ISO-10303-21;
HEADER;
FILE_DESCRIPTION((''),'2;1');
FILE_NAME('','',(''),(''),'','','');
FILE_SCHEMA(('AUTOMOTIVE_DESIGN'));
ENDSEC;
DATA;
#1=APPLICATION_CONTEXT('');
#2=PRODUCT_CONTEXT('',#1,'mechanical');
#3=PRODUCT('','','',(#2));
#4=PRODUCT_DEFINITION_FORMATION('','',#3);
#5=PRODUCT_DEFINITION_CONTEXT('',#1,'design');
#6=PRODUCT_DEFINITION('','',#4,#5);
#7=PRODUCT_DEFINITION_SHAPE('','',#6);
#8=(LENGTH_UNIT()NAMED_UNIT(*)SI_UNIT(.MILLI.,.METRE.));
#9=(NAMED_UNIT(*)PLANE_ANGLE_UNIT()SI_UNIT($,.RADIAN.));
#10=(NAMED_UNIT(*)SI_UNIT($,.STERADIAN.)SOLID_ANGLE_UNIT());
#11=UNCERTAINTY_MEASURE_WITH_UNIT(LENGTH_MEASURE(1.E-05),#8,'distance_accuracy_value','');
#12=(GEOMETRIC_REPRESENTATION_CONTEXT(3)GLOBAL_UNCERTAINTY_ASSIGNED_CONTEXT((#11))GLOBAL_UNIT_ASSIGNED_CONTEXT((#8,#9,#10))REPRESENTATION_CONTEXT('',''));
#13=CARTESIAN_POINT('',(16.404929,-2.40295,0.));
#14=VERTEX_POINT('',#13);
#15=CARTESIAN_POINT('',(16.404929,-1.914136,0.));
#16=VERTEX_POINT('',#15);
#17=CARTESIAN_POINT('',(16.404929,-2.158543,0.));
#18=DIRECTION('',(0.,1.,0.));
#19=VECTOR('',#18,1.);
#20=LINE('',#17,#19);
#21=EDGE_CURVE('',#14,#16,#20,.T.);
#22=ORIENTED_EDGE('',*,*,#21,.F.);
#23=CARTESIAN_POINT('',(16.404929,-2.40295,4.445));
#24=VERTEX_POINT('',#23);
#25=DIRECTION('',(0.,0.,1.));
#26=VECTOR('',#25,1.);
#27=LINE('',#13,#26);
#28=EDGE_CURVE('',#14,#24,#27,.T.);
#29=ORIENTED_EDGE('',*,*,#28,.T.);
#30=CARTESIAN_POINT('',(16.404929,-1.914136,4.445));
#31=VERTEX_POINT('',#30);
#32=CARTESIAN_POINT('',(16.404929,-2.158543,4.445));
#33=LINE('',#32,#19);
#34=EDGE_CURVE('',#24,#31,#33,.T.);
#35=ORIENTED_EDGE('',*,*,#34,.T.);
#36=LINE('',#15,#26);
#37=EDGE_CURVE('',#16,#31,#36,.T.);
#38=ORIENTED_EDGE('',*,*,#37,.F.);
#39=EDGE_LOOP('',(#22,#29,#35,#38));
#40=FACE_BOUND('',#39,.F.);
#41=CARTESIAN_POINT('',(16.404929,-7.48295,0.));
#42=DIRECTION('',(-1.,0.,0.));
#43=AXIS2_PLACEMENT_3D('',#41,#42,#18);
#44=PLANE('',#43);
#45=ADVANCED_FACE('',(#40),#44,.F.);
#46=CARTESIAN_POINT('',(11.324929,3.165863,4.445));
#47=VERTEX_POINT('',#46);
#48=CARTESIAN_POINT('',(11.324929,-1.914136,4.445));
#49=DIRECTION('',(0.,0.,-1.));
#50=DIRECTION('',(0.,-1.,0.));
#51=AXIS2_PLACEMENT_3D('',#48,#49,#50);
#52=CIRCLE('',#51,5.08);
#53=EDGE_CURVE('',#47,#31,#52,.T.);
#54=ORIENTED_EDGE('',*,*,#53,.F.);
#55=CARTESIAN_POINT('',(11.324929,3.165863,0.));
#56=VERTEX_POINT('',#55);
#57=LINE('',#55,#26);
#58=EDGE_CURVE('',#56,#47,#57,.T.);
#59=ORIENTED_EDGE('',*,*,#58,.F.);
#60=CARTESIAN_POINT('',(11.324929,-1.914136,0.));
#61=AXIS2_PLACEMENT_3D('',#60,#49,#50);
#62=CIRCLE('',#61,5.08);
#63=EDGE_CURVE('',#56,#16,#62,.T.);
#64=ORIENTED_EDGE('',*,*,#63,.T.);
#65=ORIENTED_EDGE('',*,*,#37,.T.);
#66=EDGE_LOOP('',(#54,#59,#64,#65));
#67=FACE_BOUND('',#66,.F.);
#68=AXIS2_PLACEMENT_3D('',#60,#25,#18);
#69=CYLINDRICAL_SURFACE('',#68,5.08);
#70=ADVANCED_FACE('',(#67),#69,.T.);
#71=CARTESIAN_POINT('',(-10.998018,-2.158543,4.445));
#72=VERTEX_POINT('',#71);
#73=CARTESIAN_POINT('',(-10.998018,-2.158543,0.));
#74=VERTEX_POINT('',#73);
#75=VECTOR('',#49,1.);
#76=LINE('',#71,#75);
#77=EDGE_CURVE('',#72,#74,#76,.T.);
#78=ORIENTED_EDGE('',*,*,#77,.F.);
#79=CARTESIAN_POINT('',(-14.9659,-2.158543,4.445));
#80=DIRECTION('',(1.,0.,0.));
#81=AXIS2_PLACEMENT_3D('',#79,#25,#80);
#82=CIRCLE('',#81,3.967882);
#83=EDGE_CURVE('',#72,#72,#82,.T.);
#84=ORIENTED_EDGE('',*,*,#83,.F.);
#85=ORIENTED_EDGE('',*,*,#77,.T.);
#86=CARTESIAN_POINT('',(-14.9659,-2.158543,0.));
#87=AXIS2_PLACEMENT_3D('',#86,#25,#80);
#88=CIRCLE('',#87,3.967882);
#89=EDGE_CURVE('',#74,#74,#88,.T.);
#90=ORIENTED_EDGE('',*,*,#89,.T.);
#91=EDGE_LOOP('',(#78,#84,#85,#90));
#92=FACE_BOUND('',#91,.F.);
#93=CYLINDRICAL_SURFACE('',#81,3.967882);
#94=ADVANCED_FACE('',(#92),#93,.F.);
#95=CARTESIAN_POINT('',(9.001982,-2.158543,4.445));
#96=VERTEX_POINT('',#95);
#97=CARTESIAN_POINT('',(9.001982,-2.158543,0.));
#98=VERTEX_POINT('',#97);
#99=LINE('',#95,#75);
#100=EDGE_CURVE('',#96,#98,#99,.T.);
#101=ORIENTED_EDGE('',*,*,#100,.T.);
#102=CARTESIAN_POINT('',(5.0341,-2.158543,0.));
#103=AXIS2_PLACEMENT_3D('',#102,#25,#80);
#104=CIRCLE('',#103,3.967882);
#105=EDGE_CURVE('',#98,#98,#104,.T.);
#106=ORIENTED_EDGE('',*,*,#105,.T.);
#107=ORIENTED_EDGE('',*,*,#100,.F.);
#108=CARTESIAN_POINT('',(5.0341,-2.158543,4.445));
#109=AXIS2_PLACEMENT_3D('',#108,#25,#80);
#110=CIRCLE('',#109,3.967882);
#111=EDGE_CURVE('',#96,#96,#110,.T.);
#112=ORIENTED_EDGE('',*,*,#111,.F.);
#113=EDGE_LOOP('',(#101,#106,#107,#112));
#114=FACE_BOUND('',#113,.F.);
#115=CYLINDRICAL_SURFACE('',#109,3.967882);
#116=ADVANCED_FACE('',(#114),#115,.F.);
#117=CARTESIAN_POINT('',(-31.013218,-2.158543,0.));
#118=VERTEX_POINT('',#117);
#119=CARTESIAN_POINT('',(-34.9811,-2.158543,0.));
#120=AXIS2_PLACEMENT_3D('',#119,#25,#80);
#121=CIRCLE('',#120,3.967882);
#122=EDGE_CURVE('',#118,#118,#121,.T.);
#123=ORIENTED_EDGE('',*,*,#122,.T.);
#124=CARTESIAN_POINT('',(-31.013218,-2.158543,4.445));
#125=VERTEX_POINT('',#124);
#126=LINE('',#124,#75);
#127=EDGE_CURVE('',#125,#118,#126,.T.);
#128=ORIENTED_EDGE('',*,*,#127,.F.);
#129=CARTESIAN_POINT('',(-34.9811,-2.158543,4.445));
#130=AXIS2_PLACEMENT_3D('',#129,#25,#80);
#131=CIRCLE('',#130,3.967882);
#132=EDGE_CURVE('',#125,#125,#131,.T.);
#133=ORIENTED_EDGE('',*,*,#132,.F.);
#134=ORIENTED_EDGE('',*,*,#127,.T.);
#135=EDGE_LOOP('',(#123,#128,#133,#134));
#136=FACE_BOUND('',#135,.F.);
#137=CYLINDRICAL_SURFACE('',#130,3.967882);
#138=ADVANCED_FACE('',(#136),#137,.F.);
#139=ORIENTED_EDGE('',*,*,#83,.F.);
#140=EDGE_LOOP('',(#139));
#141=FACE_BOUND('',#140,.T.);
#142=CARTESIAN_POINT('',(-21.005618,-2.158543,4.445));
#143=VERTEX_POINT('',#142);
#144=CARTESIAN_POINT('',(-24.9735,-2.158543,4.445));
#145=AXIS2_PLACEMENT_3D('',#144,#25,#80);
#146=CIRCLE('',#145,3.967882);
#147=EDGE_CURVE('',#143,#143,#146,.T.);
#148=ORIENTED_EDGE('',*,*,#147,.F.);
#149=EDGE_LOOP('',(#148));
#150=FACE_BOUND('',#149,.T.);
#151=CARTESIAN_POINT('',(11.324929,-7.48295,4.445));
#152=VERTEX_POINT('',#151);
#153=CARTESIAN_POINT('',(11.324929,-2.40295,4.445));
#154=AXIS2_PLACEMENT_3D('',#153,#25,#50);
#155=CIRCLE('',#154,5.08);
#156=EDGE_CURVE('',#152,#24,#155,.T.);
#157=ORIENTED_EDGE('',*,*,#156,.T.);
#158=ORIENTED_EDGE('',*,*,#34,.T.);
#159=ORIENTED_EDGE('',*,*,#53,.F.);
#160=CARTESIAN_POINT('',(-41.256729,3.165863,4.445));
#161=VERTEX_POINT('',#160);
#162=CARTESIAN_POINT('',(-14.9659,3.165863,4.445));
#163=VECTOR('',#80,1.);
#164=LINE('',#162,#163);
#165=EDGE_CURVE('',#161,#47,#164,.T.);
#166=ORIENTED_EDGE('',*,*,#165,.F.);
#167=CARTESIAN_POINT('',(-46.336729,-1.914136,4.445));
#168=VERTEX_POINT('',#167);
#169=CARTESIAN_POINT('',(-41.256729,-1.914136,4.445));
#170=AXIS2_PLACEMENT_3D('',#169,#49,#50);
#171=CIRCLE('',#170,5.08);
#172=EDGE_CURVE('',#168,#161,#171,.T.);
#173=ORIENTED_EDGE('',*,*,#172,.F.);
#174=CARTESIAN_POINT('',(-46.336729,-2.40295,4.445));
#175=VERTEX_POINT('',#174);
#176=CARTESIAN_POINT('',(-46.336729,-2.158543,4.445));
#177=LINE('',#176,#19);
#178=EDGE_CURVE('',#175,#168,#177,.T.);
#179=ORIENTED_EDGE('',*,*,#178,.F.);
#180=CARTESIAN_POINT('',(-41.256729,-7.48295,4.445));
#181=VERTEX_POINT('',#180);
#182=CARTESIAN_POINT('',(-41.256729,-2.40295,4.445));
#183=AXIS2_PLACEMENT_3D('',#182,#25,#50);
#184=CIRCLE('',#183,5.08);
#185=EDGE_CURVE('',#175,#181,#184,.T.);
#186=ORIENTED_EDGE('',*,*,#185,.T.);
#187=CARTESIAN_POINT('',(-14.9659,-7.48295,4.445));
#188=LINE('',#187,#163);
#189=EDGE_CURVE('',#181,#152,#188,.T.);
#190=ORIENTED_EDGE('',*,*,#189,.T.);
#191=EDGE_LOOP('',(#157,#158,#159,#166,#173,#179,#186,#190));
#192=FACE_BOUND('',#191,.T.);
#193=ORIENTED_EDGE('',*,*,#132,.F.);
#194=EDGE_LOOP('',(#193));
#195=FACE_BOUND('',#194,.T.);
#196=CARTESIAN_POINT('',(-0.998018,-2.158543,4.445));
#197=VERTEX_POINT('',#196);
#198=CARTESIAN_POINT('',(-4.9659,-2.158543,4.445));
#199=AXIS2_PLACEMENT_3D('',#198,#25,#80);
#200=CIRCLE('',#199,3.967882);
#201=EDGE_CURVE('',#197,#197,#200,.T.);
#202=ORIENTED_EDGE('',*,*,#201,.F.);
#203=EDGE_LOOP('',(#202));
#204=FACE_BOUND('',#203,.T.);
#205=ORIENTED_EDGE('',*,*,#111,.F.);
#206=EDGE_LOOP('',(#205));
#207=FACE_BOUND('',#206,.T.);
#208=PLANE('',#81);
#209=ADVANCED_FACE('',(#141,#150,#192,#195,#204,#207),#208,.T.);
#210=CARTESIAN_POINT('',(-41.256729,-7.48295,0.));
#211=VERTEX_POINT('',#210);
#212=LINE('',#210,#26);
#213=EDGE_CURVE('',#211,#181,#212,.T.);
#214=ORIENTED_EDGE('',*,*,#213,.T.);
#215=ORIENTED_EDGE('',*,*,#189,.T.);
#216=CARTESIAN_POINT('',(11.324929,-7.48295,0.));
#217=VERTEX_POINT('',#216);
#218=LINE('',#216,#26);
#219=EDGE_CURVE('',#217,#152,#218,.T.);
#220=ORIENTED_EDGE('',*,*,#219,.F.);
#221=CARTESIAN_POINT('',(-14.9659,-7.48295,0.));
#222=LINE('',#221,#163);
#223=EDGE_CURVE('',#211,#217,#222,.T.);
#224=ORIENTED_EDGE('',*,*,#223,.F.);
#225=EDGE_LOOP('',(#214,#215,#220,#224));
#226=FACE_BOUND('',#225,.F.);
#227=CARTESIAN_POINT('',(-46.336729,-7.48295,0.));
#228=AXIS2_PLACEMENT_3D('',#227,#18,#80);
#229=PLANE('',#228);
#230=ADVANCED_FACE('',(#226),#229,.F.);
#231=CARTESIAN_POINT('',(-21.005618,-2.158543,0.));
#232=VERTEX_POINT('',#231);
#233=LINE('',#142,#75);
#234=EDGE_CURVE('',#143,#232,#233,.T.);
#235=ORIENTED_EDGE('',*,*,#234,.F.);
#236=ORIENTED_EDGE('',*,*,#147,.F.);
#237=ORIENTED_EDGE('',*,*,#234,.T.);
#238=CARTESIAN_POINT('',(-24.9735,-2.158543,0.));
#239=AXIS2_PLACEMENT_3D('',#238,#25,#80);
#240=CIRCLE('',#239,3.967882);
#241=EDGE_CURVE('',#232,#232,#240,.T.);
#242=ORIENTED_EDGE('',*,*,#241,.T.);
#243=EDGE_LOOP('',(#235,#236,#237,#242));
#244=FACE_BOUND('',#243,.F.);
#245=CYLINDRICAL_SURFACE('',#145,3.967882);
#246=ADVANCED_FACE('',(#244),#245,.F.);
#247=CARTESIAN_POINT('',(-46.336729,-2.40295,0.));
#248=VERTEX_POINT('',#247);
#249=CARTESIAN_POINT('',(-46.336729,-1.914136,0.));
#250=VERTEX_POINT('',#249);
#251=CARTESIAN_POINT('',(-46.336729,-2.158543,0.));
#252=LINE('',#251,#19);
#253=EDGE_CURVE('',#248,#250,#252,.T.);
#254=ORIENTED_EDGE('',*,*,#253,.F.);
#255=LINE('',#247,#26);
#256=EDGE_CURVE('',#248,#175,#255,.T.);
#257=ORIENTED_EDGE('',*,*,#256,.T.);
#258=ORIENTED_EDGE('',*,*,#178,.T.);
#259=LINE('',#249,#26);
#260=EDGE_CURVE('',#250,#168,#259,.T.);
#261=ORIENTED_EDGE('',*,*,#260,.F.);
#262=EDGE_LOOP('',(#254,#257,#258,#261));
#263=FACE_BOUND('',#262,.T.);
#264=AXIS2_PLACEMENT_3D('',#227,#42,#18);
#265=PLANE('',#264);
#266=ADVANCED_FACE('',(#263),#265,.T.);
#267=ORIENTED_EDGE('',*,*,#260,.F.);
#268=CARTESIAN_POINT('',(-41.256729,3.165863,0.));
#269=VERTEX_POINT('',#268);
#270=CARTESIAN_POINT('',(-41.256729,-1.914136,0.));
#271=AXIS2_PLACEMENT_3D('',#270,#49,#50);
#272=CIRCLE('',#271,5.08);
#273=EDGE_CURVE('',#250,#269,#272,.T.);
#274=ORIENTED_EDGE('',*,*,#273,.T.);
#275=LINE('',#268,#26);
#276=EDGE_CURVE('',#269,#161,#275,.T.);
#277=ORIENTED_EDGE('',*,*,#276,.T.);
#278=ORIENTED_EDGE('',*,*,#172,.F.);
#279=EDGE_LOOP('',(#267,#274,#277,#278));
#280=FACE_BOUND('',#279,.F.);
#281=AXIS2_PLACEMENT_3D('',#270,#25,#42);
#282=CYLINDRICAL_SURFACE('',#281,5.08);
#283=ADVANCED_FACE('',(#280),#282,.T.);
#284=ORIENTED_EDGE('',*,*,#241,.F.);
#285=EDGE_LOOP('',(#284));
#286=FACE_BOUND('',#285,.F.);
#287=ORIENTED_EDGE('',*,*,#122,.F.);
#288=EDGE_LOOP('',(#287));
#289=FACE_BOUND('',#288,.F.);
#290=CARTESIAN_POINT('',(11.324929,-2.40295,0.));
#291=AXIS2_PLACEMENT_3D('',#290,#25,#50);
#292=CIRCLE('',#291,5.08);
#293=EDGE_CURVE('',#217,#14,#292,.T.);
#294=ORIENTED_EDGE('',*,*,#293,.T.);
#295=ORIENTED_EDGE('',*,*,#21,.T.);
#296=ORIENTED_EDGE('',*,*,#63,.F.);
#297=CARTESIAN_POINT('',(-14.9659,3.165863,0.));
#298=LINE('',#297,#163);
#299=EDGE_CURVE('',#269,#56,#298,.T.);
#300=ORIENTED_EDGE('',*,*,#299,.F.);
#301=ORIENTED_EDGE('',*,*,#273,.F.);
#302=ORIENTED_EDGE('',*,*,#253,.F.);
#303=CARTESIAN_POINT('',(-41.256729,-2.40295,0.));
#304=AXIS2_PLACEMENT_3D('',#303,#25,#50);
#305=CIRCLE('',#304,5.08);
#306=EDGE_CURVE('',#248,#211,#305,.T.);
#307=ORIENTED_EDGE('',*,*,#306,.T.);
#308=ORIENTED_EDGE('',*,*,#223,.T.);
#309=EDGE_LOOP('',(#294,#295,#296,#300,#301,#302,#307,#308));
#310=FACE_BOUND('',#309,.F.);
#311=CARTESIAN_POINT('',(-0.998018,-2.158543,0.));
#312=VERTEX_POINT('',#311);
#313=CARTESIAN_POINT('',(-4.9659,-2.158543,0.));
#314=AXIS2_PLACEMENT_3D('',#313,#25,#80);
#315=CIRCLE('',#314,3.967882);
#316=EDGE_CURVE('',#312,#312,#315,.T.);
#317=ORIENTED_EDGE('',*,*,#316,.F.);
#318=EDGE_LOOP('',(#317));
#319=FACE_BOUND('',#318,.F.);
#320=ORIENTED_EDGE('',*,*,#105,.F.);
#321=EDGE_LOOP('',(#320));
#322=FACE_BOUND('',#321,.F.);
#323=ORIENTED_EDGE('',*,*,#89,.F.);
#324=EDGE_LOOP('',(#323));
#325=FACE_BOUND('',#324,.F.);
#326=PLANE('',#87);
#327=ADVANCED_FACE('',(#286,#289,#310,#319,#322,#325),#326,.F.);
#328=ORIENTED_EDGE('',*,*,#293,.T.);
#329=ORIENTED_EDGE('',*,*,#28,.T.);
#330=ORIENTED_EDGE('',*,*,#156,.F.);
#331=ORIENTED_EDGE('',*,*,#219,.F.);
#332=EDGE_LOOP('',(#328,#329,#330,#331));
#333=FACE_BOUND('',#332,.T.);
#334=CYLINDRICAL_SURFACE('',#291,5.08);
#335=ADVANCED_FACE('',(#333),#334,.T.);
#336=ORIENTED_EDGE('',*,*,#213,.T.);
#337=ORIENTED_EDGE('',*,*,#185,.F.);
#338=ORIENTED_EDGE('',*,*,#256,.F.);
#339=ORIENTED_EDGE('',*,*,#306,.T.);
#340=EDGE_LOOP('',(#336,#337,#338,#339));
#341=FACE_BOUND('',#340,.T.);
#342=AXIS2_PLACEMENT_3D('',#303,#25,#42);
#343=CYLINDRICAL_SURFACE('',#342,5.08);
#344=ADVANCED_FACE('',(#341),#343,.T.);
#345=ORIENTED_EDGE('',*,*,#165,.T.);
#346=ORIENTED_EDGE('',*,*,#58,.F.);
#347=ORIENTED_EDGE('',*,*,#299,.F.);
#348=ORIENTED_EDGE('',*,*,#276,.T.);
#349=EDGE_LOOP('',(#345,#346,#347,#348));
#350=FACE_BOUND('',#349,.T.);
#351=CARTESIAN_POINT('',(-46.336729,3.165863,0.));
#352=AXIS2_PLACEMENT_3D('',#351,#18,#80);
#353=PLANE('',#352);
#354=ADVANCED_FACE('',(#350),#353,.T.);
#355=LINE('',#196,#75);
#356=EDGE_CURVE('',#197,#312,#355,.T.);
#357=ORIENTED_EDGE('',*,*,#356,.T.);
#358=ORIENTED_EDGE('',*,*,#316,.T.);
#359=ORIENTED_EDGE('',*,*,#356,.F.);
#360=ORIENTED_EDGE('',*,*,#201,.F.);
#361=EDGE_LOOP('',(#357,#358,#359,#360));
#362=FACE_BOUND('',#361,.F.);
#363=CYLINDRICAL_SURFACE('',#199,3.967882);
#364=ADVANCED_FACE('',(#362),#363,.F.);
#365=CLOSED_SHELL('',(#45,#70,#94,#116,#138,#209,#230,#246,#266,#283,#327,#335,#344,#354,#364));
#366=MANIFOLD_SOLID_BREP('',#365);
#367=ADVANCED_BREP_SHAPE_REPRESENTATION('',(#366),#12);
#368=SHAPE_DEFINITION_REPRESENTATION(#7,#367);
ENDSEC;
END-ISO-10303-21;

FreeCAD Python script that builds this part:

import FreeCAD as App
import Part
import Sketcher
from FreeCAD import Vector
Q = App.Units.Quantity


def edges_at(feature, points):
    """Names of the edges that pass closest to the given points."""
    edges = feature.Shape.Edges
    near = lambda p: min(range(len(edges)), key=lambda i: edges[i].distToShape(Part.Vertex(*p))[0])
    return sorted({f"Edge{near(p) + 1}" for p in points})

doc = App.newDocument("Part")
body = doc.addObject("PartDesign::Body", "Body")

# Sketch on XY plane
sketch1 = doc.addObject("Sketcher::SketchObject", "Sketch")
body.addObject(sketch1)
sketch1.AttachmentSupport = (doc.XY_Plane, [""])
sketch1.MapMode = "FlatFace"
sketch1.addGeometry([
    Part.LineSegment(Vector(-46, 3, 0), Vector(-46, -7, 0)),
    Part.LineSegment(Vector(-46, -7, 0), Vector(16, -7, 0)),
    Part.LineSegment(Vector(16, -7, 0), Vector(16, 3, 0)),
    Part.LineSegment(Vector(16, 3, 0), Vector(-46, 3, 0)),
], False)
sketch1.addConstraint([
    Sketcher.Constraint("Coincident", 0, 2, 1, 1),
    Sketcher.Constraint("Coincident", 1, 2, 2, 1),
    Sketcher.Constraint("Coincident", 2, 2, 3, 1),
    Sketcher.Constraint("Coincident", 3, 2, 0, 1),
    Sketcher.Constraint("Vertical", 0),
    Sketcher.Constraint("Horizontal", 1),
    Sketcher.Constraint("Vertical", 2),
    Sketcher.Constraint("Horizontal", 3),
    Sketcher.Constraint("DistanceX", 1, 1, 1, 2, Q("62.741658 mm")),
    Sketcher.Constraint("DistanceY", 0, 2, 0, 1, Q("10.648813 mm")),
    Sketcher.Constraint("DistanceX", 0, 2, -1, 1, Q("46.336729 mm")),
    Sketcher.Constraint("DistanceY", 0, 2, -1, 1, Q("7.48295 mm")),
])
pad1 = doc.addObject("PartDesign::Pad", "Pad")
body.addObject(pad1)
pad1.Profile = sketch1
pad1.Length = Q("0.175 in")

# Sketch on XY plane
sketch2 = doc.addObject("Sketcher::SketchObject", "Sketch001")
body.addObject(sketch2)
sketch2.AttachmentSupport = (doc.XY_Plane, [""])
sketch2.MapMode = "FlatFace"
sketch2.AttachmentOffset = App.Placement(Vector(0, 0, 0.175 * 25.4), App.Rotation())
sketch2.addGeometry([
    Part.Circle(Vector(-35, -2.2, 0), Vector(0, 0, 1), 4),  # 0
    Part.Circle(Vector(5, -2.2, 0), Vector(0, 0, 1), 4),  # 1
    Part.Circle(Vector(-25, -2.2, 0), Vector(0, 0, 1), 4),  # 2
    Part.Circle(Vector(-15, -2.2, 0), Vector(0, 0, 1), 4),  # 3
    Part.Circle(Vector(-5, -2.2, 0), Vector(0, 0, 1), 4),  # 4
], False)
sketch2.addConstraint([
    Sketcher.Constraint("Equal", 0, 1),
    Sketcher.Constraint("Equal", 1, 2),
    Sketcher.Constraint("Equal", 2, 3),
    Sketcher.Constraint("Equal", 3, 4),
    Sketcher.Constraint("Horizontal", 0, 3, 1, 3),
    Sketcher.Constraint("Horizontal", 1, 3, 2, 3),
    Sketcher.Constraint("Horizontal", 2, 3, 3, 3),
    Sketcher.Constraint("Horizontal", 3, 3, 4, 3),
    Sketcher.Constraint("DistanceX", 0, 3, 2, 3, Q("0.394 in")),
    Sketcher.Constraint("DistanceX", 2, 3, 3, 3, Q("0.394 in")),
    Sketcher.Constraint("Diameter", 0, Q("7.935764 mm")),
    Sketcher.Constraint("DistanceX", 0, 3, -1, 1, Q("34.9811 mm")),
    Sketcher.Constraint("DistanceX", -1, 1, 1, 3, Q("5.0341 mm")),
    Sketcher.Constraint("DistanceX", 4, 3, -1, 1, Q("4.9659 mm")),
    Sketcher.Constraint("DistanceY", 0, 3, -1, 1, Q("2.158543 mm")),
])
pocket1 = doc.addObject("PartDesign::Pocket", "Pocket")
body.addObject(pocket1)
pocket1.Profile = sketch2
pocket1.Type = "ThroughAll"
doc.recompute()

fillet = doc.addObject("PartDesign::Fillet", "Fillet")
body.addObject(fillet)
fillet.Base = (pocket1, edges_at(pocket1, [(-46.337, 3.166, 2.223), (-46.337, -7.483, 2.223)]))
fillet.Radius = Q("0.2 in")
doc.recompute()

fillet2 = doc.addObject("PartDesign::Fillet", "Fillet001")
body.addObject(fillet2)
fillet2.Base = (fillet, edges_at(fillet, [(16.405, -7.483, 2.223), (16.405, 3.166, 2.223)]))
fillet2.Radius = Q("0.2 in")

doc.recompute()
